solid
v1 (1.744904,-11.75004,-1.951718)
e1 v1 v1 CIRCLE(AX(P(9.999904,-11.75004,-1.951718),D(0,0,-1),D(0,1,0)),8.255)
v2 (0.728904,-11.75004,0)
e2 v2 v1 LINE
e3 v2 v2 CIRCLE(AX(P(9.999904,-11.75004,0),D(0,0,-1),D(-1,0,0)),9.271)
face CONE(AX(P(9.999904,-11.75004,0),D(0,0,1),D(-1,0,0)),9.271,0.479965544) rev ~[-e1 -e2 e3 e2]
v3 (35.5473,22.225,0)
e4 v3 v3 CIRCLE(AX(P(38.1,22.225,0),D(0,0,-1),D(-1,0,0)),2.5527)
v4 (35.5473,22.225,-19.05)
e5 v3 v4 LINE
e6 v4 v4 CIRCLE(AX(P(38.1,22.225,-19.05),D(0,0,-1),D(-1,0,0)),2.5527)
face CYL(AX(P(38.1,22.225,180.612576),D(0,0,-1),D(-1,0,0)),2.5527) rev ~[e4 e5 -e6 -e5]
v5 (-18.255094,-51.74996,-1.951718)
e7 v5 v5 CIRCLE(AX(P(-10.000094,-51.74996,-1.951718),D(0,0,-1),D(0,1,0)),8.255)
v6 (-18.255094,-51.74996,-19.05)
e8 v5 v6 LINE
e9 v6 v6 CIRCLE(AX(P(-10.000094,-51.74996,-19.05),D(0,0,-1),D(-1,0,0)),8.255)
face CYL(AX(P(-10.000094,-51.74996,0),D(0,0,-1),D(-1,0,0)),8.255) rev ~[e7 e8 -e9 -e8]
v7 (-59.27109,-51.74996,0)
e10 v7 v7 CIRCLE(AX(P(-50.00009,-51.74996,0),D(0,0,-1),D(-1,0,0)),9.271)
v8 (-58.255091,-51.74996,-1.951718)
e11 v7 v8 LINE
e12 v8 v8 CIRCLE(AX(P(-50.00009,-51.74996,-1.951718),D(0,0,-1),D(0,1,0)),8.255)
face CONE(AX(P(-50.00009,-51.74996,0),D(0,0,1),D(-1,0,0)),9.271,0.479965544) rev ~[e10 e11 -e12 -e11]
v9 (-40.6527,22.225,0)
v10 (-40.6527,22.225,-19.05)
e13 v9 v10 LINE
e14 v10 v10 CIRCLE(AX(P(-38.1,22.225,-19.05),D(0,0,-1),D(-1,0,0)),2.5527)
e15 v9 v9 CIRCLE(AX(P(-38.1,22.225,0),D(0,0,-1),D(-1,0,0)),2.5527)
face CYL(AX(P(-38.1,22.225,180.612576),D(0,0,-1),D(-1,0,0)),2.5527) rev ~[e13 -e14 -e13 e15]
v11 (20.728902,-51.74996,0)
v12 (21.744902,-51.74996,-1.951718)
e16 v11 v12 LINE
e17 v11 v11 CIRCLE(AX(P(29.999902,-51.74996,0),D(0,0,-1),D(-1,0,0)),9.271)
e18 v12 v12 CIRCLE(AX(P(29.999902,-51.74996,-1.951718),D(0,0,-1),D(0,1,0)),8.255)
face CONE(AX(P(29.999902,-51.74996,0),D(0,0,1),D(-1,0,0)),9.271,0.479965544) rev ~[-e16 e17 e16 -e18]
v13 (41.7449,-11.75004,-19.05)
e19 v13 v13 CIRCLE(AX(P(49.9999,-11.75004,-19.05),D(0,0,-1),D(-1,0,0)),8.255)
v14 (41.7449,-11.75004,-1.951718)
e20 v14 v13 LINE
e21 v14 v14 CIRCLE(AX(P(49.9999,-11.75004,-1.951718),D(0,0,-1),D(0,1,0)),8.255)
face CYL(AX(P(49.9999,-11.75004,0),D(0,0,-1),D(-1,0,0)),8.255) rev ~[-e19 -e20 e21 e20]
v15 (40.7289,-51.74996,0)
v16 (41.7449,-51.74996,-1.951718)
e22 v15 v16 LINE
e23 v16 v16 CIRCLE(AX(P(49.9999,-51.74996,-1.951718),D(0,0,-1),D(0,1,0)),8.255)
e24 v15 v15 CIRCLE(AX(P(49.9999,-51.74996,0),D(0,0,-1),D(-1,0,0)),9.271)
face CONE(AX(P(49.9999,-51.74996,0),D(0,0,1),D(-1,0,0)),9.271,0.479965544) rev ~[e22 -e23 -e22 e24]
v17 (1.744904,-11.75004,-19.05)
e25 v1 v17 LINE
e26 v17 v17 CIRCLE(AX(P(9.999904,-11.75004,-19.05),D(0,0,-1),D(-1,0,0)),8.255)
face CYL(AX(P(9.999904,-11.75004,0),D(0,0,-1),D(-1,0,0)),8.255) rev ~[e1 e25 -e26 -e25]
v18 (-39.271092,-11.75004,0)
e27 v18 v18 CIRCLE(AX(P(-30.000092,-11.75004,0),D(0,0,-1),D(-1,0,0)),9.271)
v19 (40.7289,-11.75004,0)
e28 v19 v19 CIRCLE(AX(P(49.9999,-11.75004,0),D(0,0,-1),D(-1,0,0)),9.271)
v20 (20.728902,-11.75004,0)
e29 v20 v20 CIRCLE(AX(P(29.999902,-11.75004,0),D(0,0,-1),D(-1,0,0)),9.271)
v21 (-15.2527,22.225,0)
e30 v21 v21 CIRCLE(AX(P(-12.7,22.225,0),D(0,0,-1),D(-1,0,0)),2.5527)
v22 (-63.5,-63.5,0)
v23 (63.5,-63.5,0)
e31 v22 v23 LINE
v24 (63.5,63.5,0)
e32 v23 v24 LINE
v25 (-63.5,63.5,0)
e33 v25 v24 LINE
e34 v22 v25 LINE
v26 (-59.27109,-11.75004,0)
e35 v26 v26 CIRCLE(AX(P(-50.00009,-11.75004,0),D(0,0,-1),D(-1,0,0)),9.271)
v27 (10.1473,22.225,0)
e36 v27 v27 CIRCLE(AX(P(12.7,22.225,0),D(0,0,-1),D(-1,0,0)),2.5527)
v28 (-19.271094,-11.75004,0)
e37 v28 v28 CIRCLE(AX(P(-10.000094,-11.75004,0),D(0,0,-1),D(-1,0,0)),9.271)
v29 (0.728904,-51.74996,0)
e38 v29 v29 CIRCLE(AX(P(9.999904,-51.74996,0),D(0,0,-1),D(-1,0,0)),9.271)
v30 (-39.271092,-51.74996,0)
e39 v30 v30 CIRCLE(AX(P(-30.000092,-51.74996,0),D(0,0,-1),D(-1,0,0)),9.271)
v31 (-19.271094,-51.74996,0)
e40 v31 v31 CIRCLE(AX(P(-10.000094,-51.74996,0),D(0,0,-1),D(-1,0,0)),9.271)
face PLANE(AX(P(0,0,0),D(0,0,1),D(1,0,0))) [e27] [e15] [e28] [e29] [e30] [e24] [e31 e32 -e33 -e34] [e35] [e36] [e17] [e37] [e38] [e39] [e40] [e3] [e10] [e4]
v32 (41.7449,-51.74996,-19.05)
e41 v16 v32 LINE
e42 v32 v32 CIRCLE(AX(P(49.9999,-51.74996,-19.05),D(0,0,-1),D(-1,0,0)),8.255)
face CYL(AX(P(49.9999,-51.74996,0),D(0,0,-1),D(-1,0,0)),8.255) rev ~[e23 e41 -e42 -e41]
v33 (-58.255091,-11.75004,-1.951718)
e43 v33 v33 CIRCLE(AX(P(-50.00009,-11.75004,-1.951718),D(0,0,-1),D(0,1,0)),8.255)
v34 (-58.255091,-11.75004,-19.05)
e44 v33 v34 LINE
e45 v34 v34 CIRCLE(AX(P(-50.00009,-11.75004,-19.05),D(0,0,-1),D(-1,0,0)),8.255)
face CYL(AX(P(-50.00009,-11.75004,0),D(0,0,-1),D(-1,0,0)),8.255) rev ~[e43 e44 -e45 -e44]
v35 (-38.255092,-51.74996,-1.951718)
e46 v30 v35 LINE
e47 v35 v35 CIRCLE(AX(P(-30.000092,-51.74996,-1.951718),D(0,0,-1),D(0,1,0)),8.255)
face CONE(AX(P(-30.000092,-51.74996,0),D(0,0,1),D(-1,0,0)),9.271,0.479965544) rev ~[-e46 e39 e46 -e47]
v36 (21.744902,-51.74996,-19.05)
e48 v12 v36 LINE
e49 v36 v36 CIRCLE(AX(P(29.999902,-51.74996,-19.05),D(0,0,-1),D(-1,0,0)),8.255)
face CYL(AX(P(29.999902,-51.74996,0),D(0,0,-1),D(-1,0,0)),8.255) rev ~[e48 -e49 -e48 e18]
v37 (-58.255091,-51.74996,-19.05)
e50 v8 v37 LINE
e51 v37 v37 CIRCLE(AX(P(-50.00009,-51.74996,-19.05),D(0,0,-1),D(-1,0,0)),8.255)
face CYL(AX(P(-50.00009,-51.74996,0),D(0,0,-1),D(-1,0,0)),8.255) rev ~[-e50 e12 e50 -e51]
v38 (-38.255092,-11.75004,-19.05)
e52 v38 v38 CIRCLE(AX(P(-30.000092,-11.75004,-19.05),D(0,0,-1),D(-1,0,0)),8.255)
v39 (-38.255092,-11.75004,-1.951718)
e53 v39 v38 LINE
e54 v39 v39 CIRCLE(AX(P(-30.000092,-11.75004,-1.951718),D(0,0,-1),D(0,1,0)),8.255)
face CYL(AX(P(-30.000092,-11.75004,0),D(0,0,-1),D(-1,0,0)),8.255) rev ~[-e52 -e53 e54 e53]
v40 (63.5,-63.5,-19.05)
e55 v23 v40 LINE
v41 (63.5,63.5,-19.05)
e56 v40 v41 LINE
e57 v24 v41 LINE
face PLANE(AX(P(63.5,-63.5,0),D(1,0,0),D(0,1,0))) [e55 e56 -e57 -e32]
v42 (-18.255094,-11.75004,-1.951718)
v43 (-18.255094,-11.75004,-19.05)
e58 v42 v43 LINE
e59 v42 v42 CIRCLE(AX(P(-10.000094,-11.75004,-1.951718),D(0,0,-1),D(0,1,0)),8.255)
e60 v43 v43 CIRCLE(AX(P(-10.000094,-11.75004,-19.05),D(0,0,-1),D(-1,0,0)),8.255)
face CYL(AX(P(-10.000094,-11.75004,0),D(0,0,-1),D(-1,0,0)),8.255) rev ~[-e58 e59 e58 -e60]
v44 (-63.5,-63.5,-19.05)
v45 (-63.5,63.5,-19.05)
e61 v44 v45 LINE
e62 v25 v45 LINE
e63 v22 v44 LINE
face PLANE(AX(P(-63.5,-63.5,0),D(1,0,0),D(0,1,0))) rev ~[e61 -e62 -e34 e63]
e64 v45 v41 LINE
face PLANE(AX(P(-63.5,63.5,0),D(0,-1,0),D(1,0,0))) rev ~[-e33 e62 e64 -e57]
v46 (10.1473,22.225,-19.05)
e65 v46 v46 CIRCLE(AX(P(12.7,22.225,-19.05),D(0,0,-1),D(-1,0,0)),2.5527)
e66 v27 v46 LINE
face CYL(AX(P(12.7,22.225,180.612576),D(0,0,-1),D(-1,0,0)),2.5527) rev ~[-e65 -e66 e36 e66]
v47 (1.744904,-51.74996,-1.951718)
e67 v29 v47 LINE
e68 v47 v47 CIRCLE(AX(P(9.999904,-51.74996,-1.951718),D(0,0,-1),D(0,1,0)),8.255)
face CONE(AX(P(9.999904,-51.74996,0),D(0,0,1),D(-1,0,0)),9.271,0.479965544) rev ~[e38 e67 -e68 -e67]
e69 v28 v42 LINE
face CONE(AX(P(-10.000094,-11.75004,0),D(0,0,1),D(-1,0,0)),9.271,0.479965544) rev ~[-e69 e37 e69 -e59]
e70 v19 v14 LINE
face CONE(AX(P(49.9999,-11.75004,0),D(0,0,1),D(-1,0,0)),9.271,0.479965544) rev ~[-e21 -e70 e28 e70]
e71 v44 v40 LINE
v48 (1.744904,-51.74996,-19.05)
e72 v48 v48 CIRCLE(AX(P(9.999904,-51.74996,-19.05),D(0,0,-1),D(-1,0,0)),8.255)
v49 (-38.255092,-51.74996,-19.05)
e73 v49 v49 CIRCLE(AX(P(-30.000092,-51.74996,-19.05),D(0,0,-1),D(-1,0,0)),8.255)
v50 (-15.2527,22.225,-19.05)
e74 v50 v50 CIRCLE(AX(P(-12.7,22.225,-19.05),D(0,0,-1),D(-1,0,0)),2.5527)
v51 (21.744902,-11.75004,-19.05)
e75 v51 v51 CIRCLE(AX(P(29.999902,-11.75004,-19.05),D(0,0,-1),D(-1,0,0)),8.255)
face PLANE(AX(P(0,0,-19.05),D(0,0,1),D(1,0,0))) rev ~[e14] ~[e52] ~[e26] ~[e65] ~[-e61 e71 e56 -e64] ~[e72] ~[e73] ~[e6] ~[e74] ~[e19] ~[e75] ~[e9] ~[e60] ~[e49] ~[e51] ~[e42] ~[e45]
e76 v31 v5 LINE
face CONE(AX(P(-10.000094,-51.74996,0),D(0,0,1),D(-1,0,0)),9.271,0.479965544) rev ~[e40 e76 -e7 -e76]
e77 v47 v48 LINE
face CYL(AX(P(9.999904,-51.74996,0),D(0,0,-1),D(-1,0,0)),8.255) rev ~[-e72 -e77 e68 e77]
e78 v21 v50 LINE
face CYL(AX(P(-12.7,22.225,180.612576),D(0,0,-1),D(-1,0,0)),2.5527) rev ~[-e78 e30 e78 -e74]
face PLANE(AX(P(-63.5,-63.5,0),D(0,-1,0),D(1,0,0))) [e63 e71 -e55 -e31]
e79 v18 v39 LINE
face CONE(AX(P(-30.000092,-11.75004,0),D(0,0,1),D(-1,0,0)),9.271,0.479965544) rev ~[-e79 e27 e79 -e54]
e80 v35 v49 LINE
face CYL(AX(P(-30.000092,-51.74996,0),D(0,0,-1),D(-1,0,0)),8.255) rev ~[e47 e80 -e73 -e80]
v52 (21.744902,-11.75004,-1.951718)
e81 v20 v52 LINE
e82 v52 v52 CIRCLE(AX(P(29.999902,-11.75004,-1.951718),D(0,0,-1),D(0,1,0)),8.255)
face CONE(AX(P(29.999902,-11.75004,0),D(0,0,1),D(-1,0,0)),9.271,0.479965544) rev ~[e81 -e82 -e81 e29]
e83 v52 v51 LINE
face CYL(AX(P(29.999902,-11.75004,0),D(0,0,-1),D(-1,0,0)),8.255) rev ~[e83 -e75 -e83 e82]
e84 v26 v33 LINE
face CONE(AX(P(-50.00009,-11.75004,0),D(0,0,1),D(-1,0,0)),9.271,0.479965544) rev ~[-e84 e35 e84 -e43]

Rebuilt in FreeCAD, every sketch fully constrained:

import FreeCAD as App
import Part
import Sketcher

V = App.Vector
Q = App.Units.Quantity


def add_polygon(sketch, points):
    """Adds a closed chain of lines whose ends are joined by coincident constraints."""
    first, n = sketch.GeometryCount, len(points)
    for a, b in zip(points, points[1:] + points[:1]):
        sketch.addGeometry(Part.LineSegment(App.Vector(*a, 0), App.Vector(*b, 0)), False)
    for i in range(n):
        sketch.addConstraint(Sketcher.Constraint("Coincident", first + i, 2, first + (i + 1) % n, 1))

doc = App.newDocument("Part")
body = doc.addObject("PartDesign::Body", "Body")

sketch1 = doc.addObject("Sketcher::SketchObject", "Sketch")
body.addObject(sketch1)
sketch1.AttachmentSupport = (doc.XY_Plane, [""])
sketch1.MapMode = "FlatFace"
add_polygon(sketch1, [(-64, 64), (-64, -64), (64, -64), (64, 64)])
sketch1.addConstraint(Sketcher.Constraint("Vertical", 0))
sketch1.addConstraint(Sketcher.Constraint("Horizontal", 1))
sketch1.addConstraint(Sketcher.Constraint("Vertical", 2))
sketch1.addConstraint(Sketcher.Constraint("Horizontal", 3))
sketch1.addConstraint(Sketcher.Constraint("Symmetric", 0, 2, 2, 2, -1, 1))
sketch1.addConstraint(Sketcher.Constraint("Equal", 3, 0))
sketch1.addConstraint(Sketcher.Constraint("DistanceX", 1, 1, 1, 2, Q("5 in")))
pad1 = doc.addObject("PartDesign::Pad", "Pad")
body.addObject(pad1)
pad1.Profile = sketch1
pad1.Length = Q("0.75 in")
pad1.Reversed = True

sketch2 = doc.addObject("Sketcher::SketchObject", "Sketch001")
body.addObject(sketch2)
sketch2.AttachmentSupport = (doc.XY_Plane, [""])
sketch2.MapMode = "FlatFace"
sketch2.addGeometry(Part.Circle(V(-38.1, 22.2, 0), V(0, 0, 1), 2.6), False)
sketch2.addGeometry(Part.Circle(V(-12.7, 22.2, 0), V(0, 0, 1), 2.6), False)
sketch2.addGeometry(Part.Circle(V(12.7, 22.2, 0), V(0, 0, 1), 2.6), False)
sketch2.addGeometry(Part.Circle(V(38.1, 22.2, 0), V(0, 0, 1), 2.6), False)
sketch2.addConstraint(Sketcher.Constraint("Equal", 0, 1))
sketch2.addConstraint(Sketcher.Constraint("Equal", 1, 2))
sketch2.addConstraint(Sketcher.Constraint("Equal", 2, 3))
sketch2.addConstraint(Sketcher.Constraint("Symmetric", 1, 3, 2, 3, -2))
sketch2.addConstraint(Sketcher.Constraint("Symmetric", 0, 3, 3, 3, -2))
sketch2.addConstraint(Sketcher.Constraint("Horizontal", 0, 3, 1, 3))
sketch2.addConstraint(Sketcher.Constraint("Diameter", 0, Q("0.201 in")))
sketch2.addConstraint(Sketcher.Constraint("DistanceX", 0, 3, 1, 3, Q("1 in")))
sketch2.addConstraint(Sketcher.Constraint("DistanceX", 1, 3, 2, 3, Q("1 in")))
sketch2.addConstraint(Sketcher.Constraint("DistanceY", -1, 1, 0, 3, Q("0.875 in")))
doc.recompute()
hole = doc.addObject("PartDesign::Hole", "Hole")
body.addObject(hole)
hole.Profile = sketch2
hole.ThreadType = "None"
hole.Diameter = Q("0.201 in")
hole.DepthType = "ThroughAll"

sketch3 = doc.addObject("Sketcher::SketchObject", "Sketch002")
body.addObject(sketch3)
sketch3.AttachmentSupport = (doc.XY_Plane, [""])
sketch3.MapMode = "FlatFace"
sketch3.addGeometry(Part.Circle(V(-50, -12, 0), V(0, 0, 1), 8), False)
sketch3.addGeometry(Part.Circle(V(-30, -12, 0), V(0, 0, 1), 8), False)
sketch3.addGeometry(Part.Circle(V(-10, -12, 0), V(0, 0, 1), 8), False)
sketch3.addGeometry(Part.Circle(V(10, -12, 0), V(0, 0, 1), 8), False)
sketch3.addGeometry(Part.Circle(V(30, -12, 0), V(0, 0, 1), 8), False)
sketch3.addGeometry(Part.Circle(V(50, -12, 0), V(0, 0, 1), 8), False)
sketch3.addGeometry(Part.Circle(V(50, -52, 0), V(0, 0, 1), 8), False)
sketch3.addGeometry(Part.Circle(V(30, -52, 0), V(0, 0, 1), 8), False)
sketch3.addGeometry(Part.Circle(V(10, -52, 0), V(0, 0, 1), 8), False)
sketch3.addGeometry(Part.Circle(V(-10, -52, 0), V(0, 0, 1), 8), False)
sketch3.addGeometry(Part.Circle(V(-30, -52, 0), V(0, 0, 1), 8), False)
sketch3.addGeometry(Part.Circle(V(-50, -52, 0), V(0, 0, 1), 8), False)
sketch3.addConstraint(Sketcher.Constraint("Equal", 0, 1))
sketch3.addConstraint(Sketcher.Constraint("Equal", 1, 2))
sketch3.addConstraint(Sketcher.Constraint("Equal", 2, 3))
sketch3.addConstraint(Sketcher.Constraint("Equal", 3, 4))
sketch3.addConstraint(Sketcher.Constraint("Equal", 4, 5))
sketch3.addConstraint(Sketcher.Constraint("Equal", 5, 6))
sketch3.addConstraint(Sketcher.Constraint("Equal", 6, 7))
sketch3.addConstraint(Sketcher.Constraint("Equal", 7, 8))
sketch3.addConstraint(Sketcher.Constraint("Equal", 8, 9))
sketch3.addConstraint(Sketcher.Constraint("Equal", 9, 10))
sketch3.addConstraint(Sketcher.Constraint("Equal", 10, 11))
sketch3.addConstraint(Sketcher.Constraint("Horizontal", 0, 3, 1, 3))
sketch3.addConstraint(Sketcher.Constraint("Horizontal", 1, 3, 2, 3))
sketch3.addConstraint(Sketcher.Constraint("Horizontal", 2, 3, 3, 3))
sketch3.addConstraint(Sketcher.Constraint("Horizontal", 3, 3, 4, 3))
sketch3.addConstraint(Sketcher.Constraint("Horizontal", 4, 3, 5, 3))
sketch3.addConstraint(Sketcher.Constraint("Horizontal", 6, 3, 7, 3))
sketch3.addConstraint(Sketcher.Constraint("Horizontal", 7, 3, 8, 3))
sketch3.addConstraint(Sketcher.Constraint("Horizontal", 8, 3, 9, 3))
sketch3.addConstraint(Sketcher.Constraint("Horizontal", 9, 3, 10, 3))
sketch3.addConstraint(Sketcher.Constraint("Horizontal", 10, 3, 11, 3))
sketch3.addConstraint(Sketcher.Constraint("Vertical", 5, 3, 6, 3))
sketch3.addConstraint(Sketcher.Constraint("Vertical", 4, 3, 7, 3))
sketch3.addConstraint(Sketcher.Constraint("Vertical", 3, 3, 8, 3))
sketch3.addConstraint(Sketcher.Constraint("Vertical", 2, 3, 9, 3))
sketch3.addConstraint(Sketcher.Constraint("Vertical", 1, 3, 10, 3))
sketch3.addConstraint(Sketcher.Constraint("Vertical", 0, 3, 11, 3))
sketch3.addConstraint(Sketcher.Constraint("Diameter", 0, Q("0.65 in")))
sketch3.addConstraint(Sketcher.Constraint("DistanceY", 0, 3, -1, 1, Q("0.4626 in")))
sketch3.addConstraint(Sketcher.Constraint("DistanceX", -1, 1, 5, 3, Q("1.9685 in")))
sketch3.addConstraint(Sketcher.Constraint("DistanceY", 6, 3, -1, 1, Q("2.0374 in")))
sketch3.addConstraint(Sketcher.Constraint("DistanceX", -1, 1, 4, 3, 29.999902))
sketch3.addConstraint(Sketcher.Constraint("DistanceX", 0, 3, 1, 3, 19.999998))
sketch3.addConstraint(Sketcher.Constraint("DistanceX", 1, 3, 2, 3, 19.999998))
sketch3.addConstraint(Sketcher.Constraint("DistanceX", 2, 3, 3, 3, 19.999998))
sketch3.addConstraint(Sketcher.Constraint("DistanceX", 3, 3, 4, 3, 19.999998))
doc.recompute()
hole2 = doc.addObject("PartDesign::Hole", "Hole001")
body.addObject(hole2)
hole2.Profile = sketch3
hole2.ThreadType = "None"
hole2.Diameter = Q("0.65 in")
hole2.DepthType = "ThroughAll"
hole2.HoleCutType = "Countersink"
hole2.HoleCutDiameter = Q("0.73 in")
hole2.HoleCutCountersinkAngle = 55

doc.recompute()
